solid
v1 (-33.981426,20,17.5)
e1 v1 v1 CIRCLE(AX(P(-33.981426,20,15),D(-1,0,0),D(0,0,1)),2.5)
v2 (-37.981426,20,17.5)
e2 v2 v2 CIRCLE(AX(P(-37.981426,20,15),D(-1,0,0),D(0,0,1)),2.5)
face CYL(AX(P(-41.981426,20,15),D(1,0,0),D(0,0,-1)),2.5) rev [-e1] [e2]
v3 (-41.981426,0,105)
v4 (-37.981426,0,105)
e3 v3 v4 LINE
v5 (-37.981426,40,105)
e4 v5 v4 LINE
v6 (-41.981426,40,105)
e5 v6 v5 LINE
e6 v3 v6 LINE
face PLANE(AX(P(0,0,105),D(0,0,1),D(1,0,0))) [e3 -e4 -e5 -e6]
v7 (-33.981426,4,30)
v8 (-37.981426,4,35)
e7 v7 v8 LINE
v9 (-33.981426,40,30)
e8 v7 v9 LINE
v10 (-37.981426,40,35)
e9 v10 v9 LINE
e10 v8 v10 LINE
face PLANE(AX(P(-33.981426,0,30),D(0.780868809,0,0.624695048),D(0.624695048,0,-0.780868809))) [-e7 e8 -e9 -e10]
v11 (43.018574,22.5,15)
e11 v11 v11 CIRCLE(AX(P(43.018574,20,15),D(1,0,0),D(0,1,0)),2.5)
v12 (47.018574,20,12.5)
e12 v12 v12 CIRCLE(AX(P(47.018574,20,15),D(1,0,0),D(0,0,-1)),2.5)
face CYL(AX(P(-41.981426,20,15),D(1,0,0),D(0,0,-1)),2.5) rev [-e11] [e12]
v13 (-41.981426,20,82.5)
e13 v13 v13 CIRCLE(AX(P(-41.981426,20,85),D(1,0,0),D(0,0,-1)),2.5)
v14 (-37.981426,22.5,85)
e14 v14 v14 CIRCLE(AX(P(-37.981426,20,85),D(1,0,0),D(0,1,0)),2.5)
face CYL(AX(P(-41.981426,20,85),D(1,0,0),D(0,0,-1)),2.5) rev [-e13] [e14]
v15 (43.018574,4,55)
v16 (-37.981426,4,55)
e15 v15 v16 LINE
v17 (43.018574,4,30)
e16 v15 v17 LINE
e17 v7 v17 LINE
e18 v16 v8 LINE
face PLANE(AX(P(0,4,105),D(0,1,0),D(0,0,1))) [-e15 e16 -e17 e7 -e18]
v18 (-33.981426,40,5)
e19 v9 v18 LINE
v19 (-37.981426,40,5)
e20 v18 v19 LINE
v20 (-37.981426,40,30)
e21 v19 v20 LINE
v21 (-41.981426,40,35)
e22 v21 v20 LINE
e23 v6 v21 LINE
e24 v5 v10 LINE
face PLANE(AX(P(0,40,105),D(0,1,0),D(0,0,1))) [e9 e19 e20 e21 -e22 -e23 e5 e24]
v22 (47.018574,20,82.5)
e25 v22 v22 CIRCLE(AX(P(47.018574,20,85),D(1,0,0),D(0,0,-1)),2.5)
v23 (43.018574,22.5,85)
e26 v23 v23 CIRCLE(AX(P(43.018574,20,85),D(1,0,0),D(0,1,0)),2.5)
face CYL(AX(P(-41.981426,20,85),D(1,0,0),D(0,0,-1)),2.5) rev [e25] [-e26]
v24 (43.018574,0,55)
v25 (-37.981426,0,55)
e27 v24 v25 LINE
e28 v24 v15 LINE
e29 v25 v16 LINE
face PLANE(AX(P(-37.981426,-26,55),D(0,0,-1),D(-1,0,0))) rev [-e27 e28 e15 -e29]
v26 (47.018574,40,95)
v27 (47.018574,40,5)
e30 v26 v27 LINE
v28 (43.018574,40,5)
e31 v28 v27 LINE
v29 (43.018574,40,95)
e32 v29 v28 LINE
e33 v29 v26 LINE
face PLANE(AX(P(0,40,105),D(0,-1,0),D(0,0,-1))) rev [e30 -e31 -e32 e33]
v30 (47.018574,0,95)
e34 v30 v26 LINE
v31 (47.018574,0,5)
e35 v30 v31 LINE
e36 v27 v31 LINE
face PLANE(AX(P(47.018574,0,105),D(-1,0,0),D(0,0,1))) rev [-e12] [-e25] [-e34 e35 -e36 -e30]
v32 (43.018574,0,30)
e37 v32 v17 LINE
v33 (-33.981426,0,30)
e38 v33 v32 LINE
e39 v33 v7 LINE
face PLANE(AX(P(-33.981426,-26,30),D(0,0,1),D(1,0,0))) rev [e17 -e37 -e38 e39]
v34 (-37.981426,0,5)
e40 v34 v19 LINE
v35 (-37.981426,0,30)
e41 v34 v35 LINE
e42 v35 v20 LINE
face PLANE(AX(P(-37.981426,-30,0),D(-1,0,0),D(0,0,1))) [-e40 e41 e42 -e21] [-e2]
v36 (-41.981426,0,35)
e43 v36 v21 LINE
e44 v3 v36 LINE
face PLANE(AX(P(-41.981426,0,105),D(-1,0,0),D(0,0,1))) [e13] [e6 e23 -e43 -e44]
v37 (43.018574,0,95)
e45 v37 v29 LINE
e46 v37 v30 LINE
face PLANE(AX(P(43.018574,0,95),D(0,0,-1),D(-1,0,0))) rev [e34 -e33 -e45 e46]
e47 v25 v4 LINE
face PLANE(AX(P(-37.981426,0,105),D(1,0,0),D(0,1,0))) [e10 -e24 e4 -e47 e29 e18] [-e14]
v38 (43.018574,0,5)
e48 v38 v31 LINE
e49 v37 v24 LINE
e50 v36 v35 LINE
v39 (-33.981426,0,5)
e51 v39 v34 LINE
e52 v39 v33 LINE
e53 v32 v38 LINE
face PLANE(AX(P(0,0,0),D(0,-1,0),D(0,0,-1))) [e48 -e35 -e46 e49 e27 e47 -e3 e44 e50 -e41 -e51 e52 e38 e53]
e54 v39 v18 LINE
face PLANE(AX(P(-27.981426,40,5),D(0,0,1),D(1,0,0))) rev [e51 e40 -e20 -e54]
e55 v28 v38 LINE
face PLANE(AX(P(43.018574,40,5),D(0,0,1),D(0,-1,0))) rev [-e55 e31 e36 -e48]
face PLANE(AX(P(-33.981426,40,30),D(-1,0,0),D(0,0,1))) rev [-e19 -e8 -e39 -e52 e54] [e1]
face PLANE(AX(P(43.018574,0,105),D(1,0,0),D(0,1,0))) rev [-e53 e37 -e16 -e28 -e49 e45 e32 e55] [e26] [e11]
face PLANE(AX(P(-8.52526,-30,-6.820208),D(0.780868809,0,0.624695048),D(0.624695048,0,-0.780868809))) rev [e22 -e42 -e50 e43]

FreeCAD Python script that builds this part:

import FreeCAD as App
import Part
import Sketcher

V = App.Vector

doc = App.newDocument("Part")
body = doc.addObject("PartDesign::Body", "Body")
body.AllowCompound = True

sketch1 = body.newObject("Sketcher::SketchObject", "Sketch")
sketch1.AttachmentSupport = (doc.getObject("XY_Plane"), [""])
sketch1.MapMode = "FlatFace"
sketch1.addGeometry(Part.LineSegment(V(47, 40, 0), V(43, 40, 0)), False)
sketch1.addGeometry(Part.LineSegment(V(43, 40, 0), V(43, 4, 0)), False)
sketch1.addGeometry(Part.LineSegment(V(43, 4, 0), V(-38, 4, 0)), False)
sketch1.addGeometry(Part.LineSegment(V(-38, 4, 0), V(-38, 40, 0)), False)
sketch1.addGeometry(Part.LineSegment(V(-38, 40, 0), V(-42, 40, 0)), False)
sketch1.addGeometry(Part.LineSegment(V(-42, 40, 0), V(-42, 0, 0)), False)
sketch1.addGeometry(Part.LineSegment(V(-42, 0, 0), V(47, 0, 0)), False)
sketch1.addGeometry(Part.LineSegment(V(47, 0, 0), V(47, 40, 0)), False)
sketch1.addConstraint(Sketcher.Constraint("Coincident", 0, 2, 1, 1))
sketch1.addConstraint(Sketcher.Constraint("Coincident", 1, 2, 2, 1))
sketch1.addConstraint(Sketcher.Constraint("Coincident", 2, 2, 3, 1))
sketch1.addConstraint(Sketcher.Constraint("Coincident", 3, 2, 4, 1))
sketch1.addConstraint(Sketcher.Constraint("Coincident", 4, 2, 5, 1))
sketch1.addConstraint(Sketcher.Constraint("Coincident", 5, 2, 6, 1))
sketch1.addConstraint(Sketcher.Constraint("Coincident", 6, 2, 7, 1))
sketch1.addConstraint(Sketcher.Constraint("Coincident", 7, 2, 0, 1))
sketch1.addConstraint(Sketcher.Constraint("Horizontal", 0))
sketch1.addConstraint(Sketcher.Constraint("Vertical", 1))
sketch1.addConstraint(Sketcher.Constraint("Horizontal", 2))
sketch1.addConstraint(Sketcher.Constraint("Vertical", 3))
sketch1.addConstraint(Sketcher.Constraint("Horizontal", 4))
sketch1.addConstraint(Sketcher.Constraint("Vertical", 5))
sketch1.addConstraint(Sketcher.Constraint("Horizontal", 6))
sketch1.addConstraint(Sketcher.Constraint("Vertical", 7))
sketch1.addConstraint(Sketcher.Constraint("PointOnObject", 5, 2, -1))
sketch1.addConstraint(Sketcher.Constraint("Horizontal", 0, 2, 3, 2))
sketch1.addConstraint(Sketcher.Constraint("Equal", 0, 4))
sketch1.addConstraint(Sketcher.Constraint("DistanceX", 0, 2, 0, 1, 4.0))
sketch1.addConstraint(Sketcher.Constraint("DistanceX", 2, 2, 2, 1, 81.0))
sketch1.addConstraint(Sketcher.Constraint("DistanceY", 1, 2, 1, 1, 36.0))
sketch1.addConstraint(Sketcher.Constraint("DistanceY", 5, 2, 5, 1, 40.0))
sketch1.addConstraint(Sketcher.Constraint("DistanceX", -1, 1, 0, 2, 43.018574))
pad1 = body.newObject("PartDesign::Pad", "Pad")
pad1.Profile = sketch1
pad1.Length = 105

sketch2 = body.newObject("Sketcher::SketchObject", "Sketch001")
sketch2.AttachmentSupport = (doc.getObject("XY_Plane"), [""])
sketch2.MapMode = "FlatFace"
sketch2.addGeometry(Part.LineSegment(V(-38, 40, 0), V(-38, 10, 0)), False)
sketch2.addGeometry(Part.LineSegment(V(-38, 10, 0), V(-34, 10, 0)), False)
sketch2.addGeometry(Part.LineSegment(V(-34, 10, 0), V(-34, 40, 0)), False)
sketch2.addGeometry(Part.LineSegment(V(-34, 40, 0), V(-38, 40, 0)), False)
sketch2.addConstraint(Sketcher.Constraint("Coincident", 0, 2, 1, 1))
sketch2.addConstraint(Sketcher.Constraint("Coincident", 1, 2, 2, 1))
sketch2.addConstraint(Sketcher.Constraint("Coincident", 2, 2, 3, 1))
sketch2.addConstraint(Sketcher.Constraint("Coincident", 3, 2, 0, 1))
sketch2.addConstraint(Sketcher.Constraint("Vertical", 0))
sketch2.addConstraint(Sketcher.Constraint("Horizontal", 1))
sketch2.addConstraint(Sketcher.Constraint("Vertical", 2))
sketch2.addConstraint(Sketcher.Constraint("Horizontal", 3))
sketch2.addConstraint(Sketcher.Constraint("DistanceX", 1, 1, 1, 2, 4.0))
sketch2.addConstraint(Sketcher.Constraint("DistanceY", 0, 2, 0, 1, 30.0))
sketch2.addConstraint(Sketcher.Constraint("DistanceY", -1, 1, 0, 2, 10.0))
sketch2.addConstraint(Sketcher.Constraint("DistanceX", 0, 2, -1, 1, 37.981426))
pad2 = body.newObject("PartDesign::Pad", "Pad001")
pad2.Profile = sketch2
pad2.Length = 30

sketch3 = body.newObject("Sketcher::SketchObject", "Sketch002")
sketch3.AttachmentSupport = (doc.getObject("XZ_Plane"), [""])
sketch3.MapMode = "FlatFace"
sketch3.AttachmentOffset = App.Placement(V(0, 0, -4), App.Rotation())
sketch3.addGeometry(Part.LineSegment(V(-34, 0, 0), V(-34, 30, 0)), False)
sketch3.addGeometry(Part.LineSegment(V(-34, 30, 0), V(43, 30, 0)), False)
sketch3.addGeometry(Part.LineSegment(V(43, 30, 0), V(43, 0, 0)), False)
sketch3.addGeometry(Part.LineSegment(V(43, 0, 0), V(-34, 0, 0)), False)
sketch3.addConstraint(Sketcher.Constraint("Coincident", 0, 2, 1, 1))
sketch3.addConstraint(Sketcher.Constraint("Coincident", 1, 2, 2, 1))
sketch3.addConstraint(Sketcher.Constraint("Coincident", 2, 2, 3, 1))
sketch3.addConstraint(Sketcher.Constraint("Coincident", 3, 2, 0, 1))
sketch3.addConstraint(Sketcher.Constraint("Vertical", 0))
sketch3.addConstraint(Sketcher.Constraint("Horizontal", 1))
sketch3.addConstraint(Sketcher.Constraint("Vertical", 2))
sketch3.addConstraint(Sketcher.Constraint("Horizontal", 3))
sketch3.addConstraint(Sketcher.Constraint("PointOnObject", 2, 2, -1))
sketch3.addConstraint(Sketcher.Constraint("DistanceX", 1, 1, 1, 2, 77.0))
sketch3.addConstraint(Sketcher.Constraint("DistanceY", 0, 1, 0, 2, 30.0))
sketch3.addConstraint(Sketcher.Constraint("DistanceX", 0, 2, -1, 1, 33.981426))
pocket1 = body.newObject("PartDesign::Pocket", "Pocket")
pocket1.Profile = sketch3
pocket1.Length = 30
pocket1.Reversed = True

sketch4 = body.newObject("Sketcher::SketchObject", "Sketch003")
sketch4.AttachmentSupport = (doc.getObject("XZ_Plane"), [""])
sketch4.MapMode = "FlatFace"
sketch4.AttachmentOffset = App.Placement(V(0, 0, -4), App.Rotation())
sketch4.addGeometry(Part.LineSegment(V(-38, 55, 0), V(-38, 105, 0)), False)
sketch4.addGeometry(Part.LineSegment(V(-38, 105, 0), V(43, 105, 0)), False)
sketch4.addGeometry(Part.LineSegment(V(43, 105, 0), V(43, 55, 0)), False)
sketch4.addGeometry(Part.LineSegment(V(43, 55, 0), V(-38, 55, 0)), False)
sketch4.addConstraint(Sketcher.Constraint("Coincident", 0, 2, 1, 1))
sketch4.addConstraint(Sketcher.Constraint("Coincident", 1, 2, 2, 1))
sketch4.addConstraint(Sketcher.Constraint("Coincident", 2, 2, 3, 1))
sketch4.addConstraint(Sketcher.Constraint("Coincident", 3, 2, 0, 1))
sketch4.addConstraint(Sketcher.Constraint("Vertical", 0))
sketch4.addConstraint(Sketcher.Constraint("Horizontal", 1))
sketch4.addConstraint(Sketcher.Constraint("Vertical", 2))
sketch4.addConstraint(Sketcher.Constraint("Horizontal", 3))
sketch4.addConstraint(Sketcher.Constraint("DistanceX", 1, 1, 1, 2, 81.0))
sketch4.addConstraint(Sketcher.Constraint("DistanceY", 0, 1, 0, 2, 50.0))
sketch4.addConstraint(Sketcher.Constraint("DistanceY", -1, 1, 0, 2, 105.0))
sketch4.addConstraint(Sketcher.Constraint("DistanceX", 0, 2, -1, 1, 37.981426))
pocket2 = body.newObject("PartDesign::Pocket", "Pocket001")
pocket2.Profile = sketch4
pocket2.Length = 30
pocket2.Reversed = True

sketch5 = body.newObject("Sketcher::SketchObject", "Sketch004")
sketch5.AttachmentSupport = (doc.getObject("XZ_Plane"), [""])
sketch5.MapMode = "FlatFace"
sketch5.AttachmentOffset = App.Placement(V(0, 0, -40), App.Rotation())
sketch5.addGeometry(Part.LineSegment(V(-42, 0, 0), V(-42, 35, 0)), False)
sketch5.addGeometry(Part.LineSegment(V(-42, 35, 0), V(-38, 30, 0)), False)
sketch5.addGeometry(Part.LineSegment(V(-38, 30, 0), V(-38, 0, 0)), False)
sketch5.addGeometry(Part.LineSegment(V(-38, 0, 0), V(-42, 0, 0)), False)
sketch5.addConstraint(Sketcher.Constraint("Coincident", 0, 2, 1, 1))
sketch5.addConstraint(Sketcher.Constraint("Coincident", 1, 2, 2, 1))
sketch5.addConstraint(Sketcher.Constraint("Coincident", 2, 2, 3, 1))
sketch5.addConstraint(Sketcher.Constraint("Coincident", 3, 2, 0, 1))
sketch5.addConstraint(Sketcher.Constraint("Vertical", 0))
sketch5.addConstraint(Sketcher.Constraint("Vertical", 2))
sketch5.addConstraint(Sketcher.Constraint("Horizontal", 3))
sketch5.addConstraint(Sketcher.Constraint("PointOnObject", 2, 2, -1))
sketch5.addConstraint(Sketcher.Constraint("DistanceX", 3, 2, 3, 1, 4.0))
sketch5.addConstraint(Sketcher.Constraint("DistanceY", 0, 1, 0, 2, 35.0))
sketch5.addConstraint(Sketcher.Constraint("DistanceY", 2, 2, 2, 1, 30.0))
sketch5.addConstraint(Sketcher.Constraint("DistanceX", 0, 2, -1, 1, 41.981426))
pocket3 = body.newObject("PartDesign::Pocket", "Pocket002")
pocket3.Profile = sketch5
pocket3.Length = 70
pocket3.Reversed = True

sketch6 = body.newObject("Sketcher::SketchObject", "Sketch005")
sketch6.AttachmentSupport = (doc.getObject("XZ_Plane"), [""])
sketch6.MapMode = "FlatFace"
sketch6.AttachmentOffset = App.Placement(V(0, 0, -40), App.Rotation())
sketch6.addGeometry(Part.LineSegment(V(-34, 30, 0), V(-38, 30, 0)), False)
sketch6.addGeometry(Part.LineSegment(V(-38, 30, 0), V(-38, 35, 0)), False)
sketch6.addGeometry(Part.LineSegment(V(-38, 35, 0), V(-34, 30, 0)), False)
sketch6.addConstraint(Sketcher.Constraint("Coincident", 0, 2, 1, 1))
sketch6.addConstraint(Sketcher.Constraint("Coincident", 1, 2, 2, 1))
sketch6.addConstraint(Sketcher.Constraint("Coincident", 2, 2, 0, 1))
sketch6.addConstraint(Sketcher.Constraint("Horizontal", 0))
sketch6.addConstraint(Sketcher.Constraint("Vertical", 1))
sketch6.addConstraint(Sketcher.Constraint("DistanceX", 0, 2, 0, 1, 4.0))
sketch6.addConstraint(Sketcher.Constraint("DistanceY", 1, 1, 1, 2, 5.0))
sketch6.addConstraint(Sketcher.Constraint("DistanceY", -1, 1, 0, 2, 30.0))
sketch6.addConstraint(Sketcher.Constraint("DistanceX", 0, 2, -1, 1, 37.981426))
pad3 = body.newObject("PartDesign::Pad", "Pad002")
pad3.Profile = sketch6
pad3.Length = 40

sketch7 = body.newObject("Sketcher::SketchObject", "Sketch006")
sketch7.AttachmentSupport = (doc.getObject("YZ_Plane"), [""])
sketch7.MapMode = "FlatFace"
sketch7.AttachmentOffset = App.Placement(V(0, 0, -37.981426), App.Rotation())
sketch7.addGeometry(Part.LineSegment(V(10, 0, 0), V(4, 0, 0)), False)
sketch7.addGeometry(Part.LineSegment(V(4, 0, 0), V(4, 30, 0)), False)
sketch7.addGeometry(Part.LineSegment(V(4, 30, 0), V(10, 30, 0)), False)
sketch7.addGeometry(Part.LineSegment(V(10, 30, 0), V(10, 0, 0)), False)
sketch7.addConstraint(Sketcher.Constraint("Coincident", 0, 2, 1, 1))
sketch7.addConstraint(Sketcher.Constraint("Coincident", 1, 2, 2, 1))
sketch7.addConstraint(Sketcher.Constraint("Coincident", 2, 2, 3, 1))
sketch7.addConstraint(Sketcher.Constraint("Coincident", 3, 2, 0, 1))
sketch7.addConstraint(Sketcher.Constraint("Horizontal", 0))
sketch7.addConstraint(Sketcher.Constraint("Vertical", 1))
sketch7.addConstraint(Sketcher.Constraint("Horizontal", 2))
sketch7.addConstraint(Sketcher.Constraint("Vertical", 3))
sketch7.addConstraint(Sketcher.Constraint("PointOnObject", 0, 2, -1))
sketch7.addConstraint(Sketcher.Constraint("DistanceX", 0, 2, 0, 1, 6.0))
sketch7.addConstraint(Sketcher.Constraint("DistanceY", 1, 1, 1, 2, 30.0))
sketch7.addConstraint(Sketcher.Constraint("DistanceX", -1, 1, 0, 2, 4.0))
pad4 = body.newObject("PartDesign::Pad", "Pad003")
pad4.Profile = sketch7
pad4.Length = 4

sketch8 = body.newObject("Sketcher::SketchObject", "Sketch007")
sketch8.AttachmentSupport = (doc.getObject("YZ_Plane"), [""])
sketch8.MapMode = "FlatFace"
sketch8.AttachmentOffset = App.Placement(V(0, 0, 47.018574), App.Rotation())
sketch8.addGeometry(Part.LineSegment(V(40, 5, 0), V(0, 5, 0)), False)
sketch8.addGeometry(Part.LineSegment(V(0, 5, 0), V(0, 0, 0)), False)
sketch8.addGeometry(Part.LineSegment(V(0, 0, 0), V(40, 0, 0)), False)
sketch8.addGeometry(Part.LineSegment(V(40, 0, 0), V(40, 5, 0)), False)
sketch8.addConstraint(Sketcher.Constraint("Coincident", 0, 2, 1, 1))
sketch8.addConstraint(Sketcher.Constraint("Coincident", 1, 2, 2, 1))
sketch8.addConstraint(Sketcher.Constraint("Coincident", 2, 2, 3, 1))
sketch8.addConstraint(Sketcher.Constraint("Coincident", 3, 2, 0, 1))
sketch8.addConstraint(Sketcher.Constraint("Horizontal", 0))
sketch8.addConstraint(Sketcher.Constraint("Vertical", 1))
sketch8.addConstraint(Sketcher.Constraint("Horizontal", 2))
sketch8.addConstraint(Sketcher.Constraint("Vertical", 3))
sketch8.addConstraint(Sketcher.Constraint("Coincident", 1, 2, -1, 1))
sketch8.addConstraint(Sketcher.Constraint("DistanceX", 0, 2, 0, 1, 40.0))
sketch8.addConstraint(Sketcher.Constraint("DistanceY", 1, 2, 1, 1, 5.0))
pocket4 = body.newObject("PartDesign::Pocket", "Pocket003")
pocket4.Profile = sketch8
pocket4.Length = 4

sketch9 = body.newObject("Sketcher::SketchObject", "Sketch008")
sketch9.AttachmentSupport = (doc.getObject("YZ_Plane"), [""])
sketch9.MapMode = "FlatFace"
sketch9.AttachmentOffset = App.Placement(V(0, 0, 47.018574), App.Rotation())
sketch9.addGeometry(Part.LineSegment(V(40, 105, 0), V(0, 105, 0)), False)
sketch9.addGeometry(Part.LineSegment(V(0, 105, 0), V(0, 95, 0)), False)
sketch9.addGeometry(Part.LineSegment(V(0, 95, 0), V(40, 95, 0)), False)
sketch9.addGeometry(Part.LineSegment(V(40, 95, 0), V(40, 105, 0)), False)
sketch9.addConstraint(Sketcher.Constraint("Coincident", 0, 2, 1, 1))
sketch9.addConstraint(Sketcher.Constraint("Coincident", 1, 2, 2, 1))
sketch9.addConstraint(Sketcher.Constraint("Coincident", 2, 2, 3, 1))
sketch9.addConstraint(Sketcher.Constraint("Coincident", 3, 2, 0, 1))
sketch9.addConstraint(Sketcher.Constraint("Horizontal", 0))
sketch9.addConstraint(Sketcher.Constraint("Vertical", 1))
sketch9.addConstraint(Sketcher.Constraint("Horizontal", 2))
sketch9.addConstraint(Sketcher.Constraint("Vertical", 3))
sketch9.addConstraint(Sketcher.Constraint("PointOnObject", 0, 2, -2))
sketch9.addConstraint(Sketcher.Constraint("DistanceX", 0, 2, 0, 1, 40.0))
sketch9.addConstraint(Sketcher.Constraint("DistanceY", 1, 2, 1, 1, 10.0))
sketch9.addConstraint(Sketcher.Constraint("DistanceY", -1, 1, 0, 2, 105.0))
pocket5 = body.newObject("PartDesign::Pocket", "Pocket004")
pocket5.Profile = sketch9
pocket5.Length = 4

sketch10 = body.newObject("Sketcher::SketchObject", "Sketch009")
sketch10.AttachmentSupport = (doc.getObject("YZ_Plane"), [""])
sketch10.MapMode = "FlatFace"
sketch10.AttachmentOffset = App.Placement(V(0, 0, 47.018574), App.Rotation())
sketch10.addGeometry(Part.Circle(V(20, 15, 0), V(0, 0, 1), 2.5), False)
sketch10.addGeometry(Part.Circle(V(20, 85, 0), V(0, 0, 1), 2.5), False)
sketch10.addConstraint(Sketcher.Constraint("Equal", 0, 1))
sketch10.addConstraint(Sketcher.Constraint("Vertical", 0, 3, 1, 3))
sketch10.addConstraint(Sketcher.Constraint("Diameter", 0, 5.0))
sketch10.addConstraint(Sketcher.Constraint("DistanceX", -1, 1, 0, 3, 20.0))
sketch10.addConstraint(Sketcher.Constraint("DistanceY", -1, 1, 0, 3, 15.0))
sketch10.addConstraint(Sketcher.Constraint("DistanceY", -1, 1, 1, 3, 85.0))
pocket6 = body.newObject("PartDesign::Pocket", "Pocket005")
pocket6.Profile = sketch10
pocket6.Type = "ThroughAll"

sketch11 = body.newObject("Sketcher::SketchObject", "Sketch010")
sketch11.AttachmentSupport = (doc.getObject("YZ_Plane"), [""])
sketch11.MapMode = "FlatFace"
sketch11.AttachmentOffset = App.Placement(V(0, 0, -37.981426), App.Rotation())
sketch11.addGeometry(Part.LineSegment(V(40, 0, 0), V(0, 0, 0)), False)
sketch11.addGeometry(Part.LineSegment(V(0, 0, 0), V(0, 5, 0)), False)
sketch11.addGeometry(Part.LineSegment(V(0, 5, 0), V(40, 5, 0)), False)
sketch11.addGeometry(Part.LineSegment(V(40, 5, 0), V(40, 0, 0)), False)
sketch11.addConstraint(Sketcher.Constraint("Coincident", 0, 2, 1, 1))
sketch11.addConstraint(Sketcher.Constraint("Coincident", 1, 2, 2, 1))
sketch11.addConstraint(Sketcher.Constraint("Coincident", 2, 2, 3, 1))
sketch11.addConstraint(Sketcher.Constraint("Coincident", 3, 2, 0, 1))
sketch11.addConstraint(Sketcher.Constraint("Horizontal", 0))
sketch11.addConstraint(Sketcher.Constraint("Vertical", 1))
sketch11.addConstraint(Sketcher.Constraint("Horizontal", 2))
sketch11.addConstraint(Sketcher.Constraint("Vertical", 3))
sketch11.addConstraint(Sketcher.Constraint("Coincident", 0, 2, -1, 1))
sketch11.addConstraint(Sketcher.Constraint("DistanceX", 0, 2, 0, 1, 40.0))
sketch11.addConstraint(Sketcher.Constraint("DistanceY", 1, 1, 1, 2, 5.0))
pocket7 = body.newObject("PartDesign::Pocket", "Pocket006")
pocket7.Profile = sketch11
pocket7.Length = 10
pocket7.Reversed = True

doc.recompute()
